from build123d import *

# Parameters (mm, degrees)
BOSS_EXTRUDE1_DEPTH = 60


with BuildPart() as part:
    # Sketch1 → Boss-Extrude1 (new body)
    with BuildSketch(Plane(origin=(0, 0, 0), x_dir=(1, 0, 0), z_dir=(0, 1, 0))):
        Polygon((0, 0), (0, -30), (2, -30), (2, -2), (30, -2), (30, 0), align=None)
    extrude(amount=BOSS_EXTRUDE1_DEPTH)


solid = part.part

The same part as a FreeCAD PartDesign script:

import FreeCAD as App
import Part
import Sketcher
from FreeCAD import Vector

doc = App.newDocument("Part")
body = doc.addObject("PartDesign::Body", "Body")

sketch1 = body.newObject("Sketcher::SketchObject", "Sketch")
sketch1.AttachmentSupport = (doc.getObject("XZ_Plane"), [""])
sketch1.MapMode = "FlatFace"
sketch1.addGeometry([
    Part.LineSegment(Vector(0, 0, 0), Vector(0, 30, 0)),
    Part.LineSegment(Vector(0, 30, 0), Vector(2, 30, 0)),
    Part.LineSegment(Vector(2, 30, 0), Vector(2, 2, 0)),
    Part.LineSegment(Vector(2, 2, 0), Vector(30, 2, 0)),
    Part.LineSegment(Vector(30, 2, 0), Vector(30, 0, 0)),
    Part.LineSegment(Vector(30, 0, 0), Vector(0, 0, 0)),
], False)
sketch1.addConstraint([
    Sketcher.Constraint("Coincident", 0, 2, 1, 1),
    Sketcher.Constraint("Coincident", 1, 2, 2, 1),
    Sketcher.Constraint("Coincident", 2, 2, 3, 1),
    Sketcher.Constraint("Coincident", 3, 2, 4, 1),
    Sketcher.Constraint("Coincident", 4, 2, 5, 1),
    Sketcher.Constraint("Coincident", 5, 2, 0, 1),
    Sketcher.Constraint("Vertical", 0),
    Sketcher.Constraint("Horizontal", 1),
    Sketcher.Constraint("Vertical", 2),
    Sketcher.Constraint("Horizontal", 3),
    Sketcher.Constraint("Vertical", 4),
    Sketcher.Constraint("Horizontal", 5),
    Sketcher.Constraint("Coincident", 5, 2, -1, 1),
    Sketcher.Constraint("Equal", 5, 0),
    Sketcher.Constraint("Equal", 3, 2),
    Sketcher.Constraint("DistanceX", 1, 1, 1, 2, 2.0),
    Sketcher.Constraint("DistanceX", 3, 1, 3, 2, 28.0),
])
pad1 = body.newObject("PartDesign::Pad", "Pad")
pad1.Profile = sketch1
pad1.Length = 60
pad1.Reversed = True

doc.recompute()
